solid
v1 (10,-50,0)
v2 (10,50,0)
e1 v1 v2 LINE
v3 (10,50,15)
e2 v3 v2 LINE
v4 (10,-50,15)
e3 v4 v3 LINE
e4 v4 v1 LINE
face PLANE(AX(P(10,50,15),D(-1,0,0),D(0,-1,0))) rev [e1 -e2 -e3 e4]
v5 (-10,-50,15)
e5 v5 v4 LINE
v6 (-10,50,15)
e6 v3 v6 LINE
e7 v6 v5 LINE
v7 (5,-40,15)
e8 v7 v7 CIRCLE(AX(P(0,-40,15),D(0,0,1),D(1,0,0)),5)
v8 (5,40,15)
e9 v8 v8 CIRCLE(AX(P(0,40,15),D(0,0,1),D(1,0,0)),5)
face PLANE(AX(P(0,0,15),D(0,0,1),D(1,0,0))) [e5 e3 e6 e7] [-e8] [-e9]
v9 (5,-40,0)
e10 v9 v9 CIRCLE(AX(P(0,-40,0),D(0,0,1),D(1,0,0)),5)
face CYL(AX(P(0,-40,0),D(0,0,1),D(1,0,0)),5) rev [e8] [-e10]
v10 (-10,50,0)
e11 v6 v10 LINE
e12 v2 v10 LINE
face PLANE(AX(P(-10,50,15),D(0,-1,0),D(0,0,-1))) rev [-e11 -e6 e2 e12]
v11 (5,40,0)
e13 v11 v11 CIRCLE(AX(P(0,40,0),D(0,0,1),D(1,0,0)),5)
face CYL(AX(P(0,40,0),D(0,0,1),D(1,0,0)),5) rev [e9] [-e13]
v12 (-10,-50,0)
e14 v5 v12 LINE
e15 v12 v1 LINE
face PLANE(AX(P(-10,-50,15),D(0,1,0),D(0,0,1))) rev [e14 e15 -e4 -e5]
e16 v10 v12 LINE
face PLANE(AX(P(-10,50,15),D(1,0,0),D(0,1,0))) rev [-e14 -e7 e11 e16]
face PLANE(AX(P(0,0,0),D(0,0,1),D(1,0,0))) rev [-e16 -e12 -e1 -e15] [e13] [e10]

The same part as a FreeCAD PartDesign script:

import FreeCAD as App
import Part
import Sketcher
from FreeCAD import Vector

doc = App.newDocument("Part")
body = doc.addObject("PartDesign::Body", "Body")

# Sketch on XY plane
sketch1 = doc.addObject("Sketcher::SketchObject", "Sketch")
body.addObject(sketch1)
sketch1.AttachmentSupport = (doc.XY_Plane, [""])
sketch1.MapMode = "FlatFace"
sketch1.addGeometry(Part.LineSegment(Vector(-10, 50, 0), Vector(-10, -50, 0)), False)
sketch1.addGeometry(Part.LineSegment(Vector(-10, -50, 0), Vector(10, -50, 0)), False)
sketch1.addGeometry(Part.LineSegment(Vector(10, -50, 0), Vector(10, 50, 0)), False)
sketch1.addGeometry(Part.LineSegment(Vector(10, 50, 0), Vector(-10, 50, 0)), False)
sketch1.addConstraint(Sketcher.Constraint("Coincident", 0, 2, 1, 1))
sketch1.addConstraint(Sketcher.Constraint("Coincident", 1, 2, 2, 1))
sketch1.addConstraint(Sketcher.Constraint("Coincident", 2, 2, 3, 1))
sketch1.addConstraint(Sketcher.Constraint("Coincident", 3, 2, 0, 1))
sketch1.addConstraint(Sketcher.Constraint("Vertical", 0))
sketch1.addConstraint(Sketcher.Constraint("Horizontal", 1))
sketch1.addConstraint(Sketcher.Constraint("Vertical", 2))
sketch1.addConstraint(Sketcher.Constraint("Horizontal", 3))
sketch1.addConstraint(Sketcher.Constraint("Symmetric", 0, 2, 2, 2, -1, 1))
sketch1.addConstraint(Sketcher.Constraint("DistanceX", 1, 1, 1, 2, 20.0))
sketch1.addConstraint(Sketcher.Constraint("DistanceY", 0, 2, 0, 1, 100.0))
pad1 = doc.addObject("PartDesign::Pad", "Pad")
body.addObject(pad1)
pad1.Profile = sketch1
pad1.Length = 15

# Sketch on XY plane
sketch2 = doc.addObject("Sketcher::SketchObject", "Sketch001")
body.addObject(sketch2)
sketch2.AttachmentSupport = (doc.XY_Plane, [""])
sketch2.MapMode = "FlatFace"
sketch2.AttachmentOffset = App.Placement(Vector(0, 0, 15), App.Rotation())
sketch2.addGeometry(Part.Circle(Vector(0, 40, 0), Vector(0, 0, 1), 5), False)
sketch2.addGeometry(Part.Circle(Vector(0, -40, 0), Vector(0, 0, 1), 5), False)
sketch2.addConstraint(Sketcher.Constraint("Equal", 0, 1))
sketch2.addConstraint(Sketcher.Constraint("Symmetric", 0, 3, 1, 3, -1, 1))
sketch2.addConstraint(Sketcher.Constraint("PointOnObject", 0, 3, -2))
sketch2.addConstraint(Sketcher.Constraint("Diameter", 0, 10.0))
sketch2.addConstraint(Sketcher.Constraint("DistanceY", -1, 1, 0, 3, 40.0))
pocket1 = doc.addObject("PartDesign::Pocket", "Pocket")
body.addObject(pocket1)
pocket1.Profile = sketch2
pocket1.Length = 15

doc.recompute()
